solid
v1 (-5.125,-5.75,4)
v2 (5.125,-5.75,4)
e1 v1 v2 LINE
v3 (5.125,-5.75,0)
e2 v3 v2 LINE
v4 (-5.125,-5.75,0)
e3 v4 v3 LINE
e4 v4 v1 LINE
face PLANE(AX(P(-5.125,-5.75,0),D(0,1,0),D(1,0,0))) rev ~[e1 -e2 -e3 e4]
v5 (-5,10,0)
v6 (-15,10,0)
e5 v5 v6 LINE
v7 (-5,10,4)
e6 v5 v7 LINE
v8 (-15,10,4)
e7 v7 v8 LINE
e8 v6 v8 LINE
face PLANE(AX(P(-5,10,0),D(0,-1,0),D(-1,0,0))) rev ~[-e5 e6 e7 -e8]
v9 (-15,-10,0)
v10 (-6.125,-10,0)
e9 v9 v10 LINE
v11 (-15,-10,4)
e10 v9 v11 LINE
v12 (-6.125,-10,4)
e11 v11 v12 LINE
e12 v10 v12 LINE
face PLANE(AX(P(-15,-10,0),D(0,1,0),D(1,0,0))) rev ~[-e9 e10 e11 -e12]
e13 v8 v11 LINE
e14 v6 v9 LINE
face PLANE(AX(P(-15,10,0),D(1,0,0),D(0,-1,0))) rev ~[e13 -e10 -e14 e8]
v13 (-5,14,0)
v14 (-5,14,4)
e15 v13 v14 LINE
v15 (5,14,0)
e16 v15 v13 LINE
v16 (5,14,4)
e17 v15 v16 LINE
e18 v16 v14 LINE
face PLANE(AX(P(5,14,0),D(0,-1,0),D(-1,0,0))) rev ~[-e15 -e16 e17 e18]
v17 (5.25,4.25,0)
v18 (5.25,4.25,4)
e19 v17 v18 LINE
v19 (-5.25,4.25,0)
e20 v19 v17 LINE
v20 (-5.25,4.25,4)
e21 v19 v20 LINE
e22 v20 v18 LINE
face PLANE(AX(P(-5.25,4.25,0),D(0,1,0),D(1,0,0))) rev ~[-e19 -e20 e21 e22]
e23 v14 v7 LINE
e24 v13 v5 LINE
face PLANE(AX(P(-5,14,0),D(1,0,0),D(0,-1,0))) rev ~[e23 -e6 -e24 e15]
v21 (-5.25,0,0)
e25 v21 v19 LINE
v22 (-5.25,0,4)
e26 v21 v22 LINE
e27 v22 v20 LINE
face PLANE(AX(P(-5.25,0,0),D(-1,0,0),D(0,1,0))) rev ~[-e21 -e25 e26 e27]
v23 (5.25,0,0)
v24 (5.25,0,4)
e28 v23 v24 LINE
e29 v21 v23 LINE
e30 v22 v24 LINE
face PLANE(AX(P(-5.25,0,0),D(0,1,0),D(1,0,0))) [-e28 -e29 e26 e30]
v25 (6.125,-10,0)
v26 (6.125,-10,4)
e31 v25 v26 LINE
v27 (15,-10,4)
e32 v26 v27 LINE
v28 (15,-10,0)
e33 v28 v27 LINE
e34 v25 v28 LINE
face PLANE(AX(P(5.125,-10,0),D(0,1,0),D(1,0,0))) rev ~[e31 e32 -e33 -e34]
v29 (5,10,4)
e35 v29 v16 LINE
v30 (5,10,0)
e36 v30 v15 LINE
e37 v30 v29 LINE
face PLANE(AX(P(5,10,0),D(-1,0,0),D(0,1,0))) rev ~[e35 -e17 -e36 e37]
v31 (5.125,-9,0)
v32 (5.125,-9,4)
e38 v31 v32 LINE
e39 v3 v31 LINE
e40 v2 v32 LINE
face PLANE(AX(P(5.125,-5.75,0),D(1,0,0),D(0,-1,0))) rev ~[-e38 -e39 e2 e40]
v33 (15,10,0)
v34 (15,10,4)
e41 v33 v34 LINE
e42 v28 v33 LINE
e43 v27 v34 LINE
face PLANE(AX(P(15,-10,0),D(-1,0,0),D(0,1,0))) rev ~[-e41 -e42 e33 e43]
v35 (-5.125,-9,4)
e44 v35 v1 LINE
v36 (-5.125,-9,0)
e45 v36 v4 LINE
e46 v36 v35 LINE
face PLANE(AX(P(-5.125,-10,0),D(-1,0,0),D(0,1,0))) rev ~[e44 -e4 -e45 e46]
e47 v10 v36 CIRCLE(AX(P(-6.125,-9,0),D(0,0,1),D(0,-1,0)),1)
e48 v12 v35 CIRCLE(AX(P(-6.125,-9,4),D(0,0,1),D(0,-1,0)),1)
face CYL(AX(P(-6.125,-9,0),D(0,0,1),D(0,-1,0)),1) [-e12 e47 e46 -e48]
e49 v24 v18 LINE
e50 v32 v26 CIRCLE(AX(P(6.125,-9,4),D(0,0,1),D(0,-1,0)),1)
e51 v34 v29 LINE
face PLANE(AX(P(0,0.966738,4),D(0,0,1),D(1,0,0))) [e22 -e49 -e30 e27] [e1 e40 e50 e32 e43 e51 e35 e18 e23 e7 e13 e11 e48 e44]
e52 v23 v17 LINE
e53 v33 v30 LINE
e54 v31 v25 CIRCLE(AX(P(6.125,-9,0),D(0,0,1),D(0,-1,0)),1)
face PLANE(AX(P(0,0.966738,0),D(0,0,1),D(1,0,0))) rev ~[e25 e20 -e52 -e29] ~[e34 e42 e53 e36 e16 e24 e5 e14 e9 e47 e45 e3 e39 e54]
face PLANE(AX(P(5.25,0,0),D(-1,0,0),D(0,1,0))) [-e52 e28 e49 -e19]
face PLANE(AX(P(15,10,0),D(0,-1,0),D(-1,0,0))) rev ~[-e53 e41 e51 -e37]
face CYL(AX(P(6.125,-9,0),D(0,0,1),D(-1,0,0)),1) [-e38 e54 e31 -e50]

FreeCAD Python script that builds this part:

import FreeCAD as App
import Part
import Sketcher

V = App.Vector


def edges_at(feature, points):
    """Names of the edges that pass closest to the given points."""
    edges = feature.Shape.Edges
    near = lambda p: min(range(len(edges)), key=lambda i: edges[i].distToShape(Part.Vertex(*p))[0])
    return sorted({f"Edge{near(p) + 1}" for p in points})


def add_polygon(sketch, points):
    """Adds a closed chain of lines whose ends are joined by coincident constraints."""
    first, n = sketch.GeometryCount, len(points)
    for a, b in zip(points, points[1:] + points[:1]):
        sketch.addGeometry(Part.LineSegment(App.Vector(*a, 0), App.Vector(*b, 0)), False)
    for i in range(n):
        sketch.addConstraint(Sketcher.Constraint("Coincident", first + i, 2, first + (i + 1) % n, 1))

doc = App.newDocument("Part")
body = doc.addObject("PartDesign::Body", "Body")

sketch1 = body.newObject("Sketcher::SketchObject", "Sketch")
sketch1.AttachmentSupport = (doc.getObject("XY_Plane"), [""])
sketch1.MapMode = "FlatFace"
add_polygon(sketch1, [(-15, 10), (-15, -10), (-5.1, -10), (-5.1, -5.8), (5.1, -5.8), (5.1, -10), (15, -10), (15, 10), (5, 10), (5, 14), (-5, 14), (-5, 10)])
add_polygon(sketch1, [(5.2, 0), (-5.2, 0), (-5.2, 4.2), (5.2, 4.2)])
sketch1.addConstraint(Sketcher.Constraint("Vertical", 0))
sketch1.addConstraint(Sketcher.Constraint("Horizontal", 1))
sketch1.addConstraint(Sketcher.Constraint("Vertical", 2))
sketch1.addConstraint(Sketcher.Constraint("Horizontal", 3))
sketch1.addConstraint(Sketcher.Constraint("Vertical", 4))
sketch1.addConstraint(Sketcher.Constraint("Horizontal", 5))
sketch1.addConstraint(Sketcher.Constraint("Vertical", 6))
sketch1.addConstraint(Sketcher.Constraint("Horizontal", 7))
sketch1.addConstraint(Sketcher.Constraint("Vertical", 8))
sketch1.addConstraint(Sketcher.Constraint("Horizontal", 9))
sketch1.addConstraint(Sketcher.Constraint("Vertical", 10))
sketch1.addConstraint(Sketcher.Constraint("Horizontal", 11))
sketch1.addConstraint(Sketcher.Constraint("Horizontal", 12))
sketch1.addConstraint(Sketcher.Constraint("Vertical", 13))
sketch1.addConstraint(Sketcher.Constraint("Horizontal", 14))
sketch1.addConstraint(Sketcher.Constraint("Vertical", 15))
sketch1.addConstraint(Sketcher.Constraint("Symmetric", 0, 2, 6, 2, -1, 1))
sketch1.addConstraint(Sketcher.Constraint("Symmetric", 12, 2, 15, 2, -1, 1))
sketch1.addConstraint(Sketcher.Constraint("Symmetric", 1, 2, 4, 2, -2))
sketch1.addConstraint(Sketcher.Constraint("Symmetric", 7, 2, 10, 2, -2))
sketch1.addConstraint(Sketcher.Constraint("Equal", 7, 9))
sketch1.addConstraint(Sketcher.Constraint("Equal", 4, 13))
sketch1.addConstraint(Sketcher.Constraint("DistanceX", 7, 2, 7, 1, 10.0))
sketch1.addConstraint(Sketcher.Constraint("DistanceY", 0, 2, 0, 1, 20.0))
sketch1.addConstraint(Sketcher.Constraint("DistanceY", 8, 1, 8, 2, 4.0))
sketch1.addConstraint(Sketcher.Constraint("DistanceX", 12, 2, 12, 1, 10.5))
sketch1.addConstraint(Sketcher.Constraint("DistanceX", 3, 1, 3, 2, 10.25))
sketch1.addConstraint(Sketcher.Constraint("DistanceY", 2, 1, 2, 2, 4.25))
pad1 = body.newObject("PartDesign::Pad", "Pad")
pad1.Profile = sketch1
pad1.Length = 4
doc.recompute()

fillet = body.newObject("PartDesign::Fillet", "Fillet")
fillet.Base = (pad1, edges_at(pad1, [(-5.125, -10, 2), (5.125, -10, 2)]))
fillet.Radius = 1

doc.recompute()
